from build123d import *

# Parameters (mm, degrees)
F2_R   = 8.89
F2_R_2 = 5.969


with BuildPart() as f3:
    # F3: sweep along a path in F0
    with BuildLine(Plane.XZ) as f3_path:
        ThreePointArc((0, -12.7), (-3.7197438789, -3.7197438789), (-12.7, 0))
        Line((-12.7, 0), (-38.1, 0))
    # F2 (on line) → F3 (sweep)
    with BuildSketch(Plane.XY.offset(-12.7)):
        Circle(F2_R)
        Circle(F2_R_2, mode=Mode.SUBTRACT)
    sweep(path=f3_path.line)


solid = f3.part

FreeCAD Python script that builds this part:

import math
import FreeCAD as App
import Part
import Sketcher

V = App.Vector
Q = App.Units.Quantity

doc = App.newDocument("Part")
body = doc.addObject("PartDesign::Body", "Body")

# Sketch on XY plane
sketch1 = body.newObject("Sketcher::SketchObject", "Sketch")
sketch1.AttachmentSupport = (doc.getObject("XY_Plane"), [""])
sketch1.MapMode = "FlatFace"
sketch1.AttachmentOffset = App.Placement(V(0, 0, -0.5 * 25.4), App.Rotation())
sketch1.addGeometry([
    Part.Circle(V(0, 0, 0), V(0, 0, 1), 8.89),
    Part.Circle(V(0, 0, 0), V(0, 0, 1), 5.969),
], False)
sketch1.addConstraint([
    Sketcher.Constraint("Coincident", 0, 3, -1, 1),
    Sketcher.Constraint("Coincident", 1, 3, -1, 1),
    Sketcher.Constraint("Diameter", 0, Q("0.7 in")),
    Sketcher.Constraint("Diameter", 1, Q("0.47 in")),
])

# Sketch on XZ plane
sketch2 = body.newObject("Sketcher::SketchObject", "Sketch001")
sketch2.AttachmentSupport = (doc.getObject("XZ_Plane"), [""])
sketch2.MapMode = "FlatFace"
sketch2.addGeometry([
    Part.ArcOfCircle(Part.Circle(V(-12.7, -12.7, 0), V(0, 0, 1), 12.7), math.radians(0), math.radians(90)),
    Part.LineSegment(V(-12.7, 0, 0), V(-38.1, 0, 0)),
], False)
sketch2.addConstraint([
    Sketcher.Constraint("Tangent", 0, 2, 1, 1),
    Sketcher.Constraint("Horizontal", 1),
    Sketcher.Constraint("PointOnObject", 0, 1, -2),
    Sketcher.Constraint("PointOnObject", 0, 2, -1),
    Sketcher.Constraint("Radius", 0, Q("0.5 in")),
    Sketcher.Constraint("DistanceX", 1, 2, 1, 1, Q("1 in")),
    Sketcher.Constraint("DistanceY", 0, 1, -1, 1, Q("0.5 in")),
])
doc.recompute()

additivepipe = body.newObject("PartDesign::AdditivePipe", "AdditivePipe")
additivepipe.Profile = sketch1
additivepipe.Spine = (sketch2, ["Edge1", "Edge2"])

doc.recompute()
